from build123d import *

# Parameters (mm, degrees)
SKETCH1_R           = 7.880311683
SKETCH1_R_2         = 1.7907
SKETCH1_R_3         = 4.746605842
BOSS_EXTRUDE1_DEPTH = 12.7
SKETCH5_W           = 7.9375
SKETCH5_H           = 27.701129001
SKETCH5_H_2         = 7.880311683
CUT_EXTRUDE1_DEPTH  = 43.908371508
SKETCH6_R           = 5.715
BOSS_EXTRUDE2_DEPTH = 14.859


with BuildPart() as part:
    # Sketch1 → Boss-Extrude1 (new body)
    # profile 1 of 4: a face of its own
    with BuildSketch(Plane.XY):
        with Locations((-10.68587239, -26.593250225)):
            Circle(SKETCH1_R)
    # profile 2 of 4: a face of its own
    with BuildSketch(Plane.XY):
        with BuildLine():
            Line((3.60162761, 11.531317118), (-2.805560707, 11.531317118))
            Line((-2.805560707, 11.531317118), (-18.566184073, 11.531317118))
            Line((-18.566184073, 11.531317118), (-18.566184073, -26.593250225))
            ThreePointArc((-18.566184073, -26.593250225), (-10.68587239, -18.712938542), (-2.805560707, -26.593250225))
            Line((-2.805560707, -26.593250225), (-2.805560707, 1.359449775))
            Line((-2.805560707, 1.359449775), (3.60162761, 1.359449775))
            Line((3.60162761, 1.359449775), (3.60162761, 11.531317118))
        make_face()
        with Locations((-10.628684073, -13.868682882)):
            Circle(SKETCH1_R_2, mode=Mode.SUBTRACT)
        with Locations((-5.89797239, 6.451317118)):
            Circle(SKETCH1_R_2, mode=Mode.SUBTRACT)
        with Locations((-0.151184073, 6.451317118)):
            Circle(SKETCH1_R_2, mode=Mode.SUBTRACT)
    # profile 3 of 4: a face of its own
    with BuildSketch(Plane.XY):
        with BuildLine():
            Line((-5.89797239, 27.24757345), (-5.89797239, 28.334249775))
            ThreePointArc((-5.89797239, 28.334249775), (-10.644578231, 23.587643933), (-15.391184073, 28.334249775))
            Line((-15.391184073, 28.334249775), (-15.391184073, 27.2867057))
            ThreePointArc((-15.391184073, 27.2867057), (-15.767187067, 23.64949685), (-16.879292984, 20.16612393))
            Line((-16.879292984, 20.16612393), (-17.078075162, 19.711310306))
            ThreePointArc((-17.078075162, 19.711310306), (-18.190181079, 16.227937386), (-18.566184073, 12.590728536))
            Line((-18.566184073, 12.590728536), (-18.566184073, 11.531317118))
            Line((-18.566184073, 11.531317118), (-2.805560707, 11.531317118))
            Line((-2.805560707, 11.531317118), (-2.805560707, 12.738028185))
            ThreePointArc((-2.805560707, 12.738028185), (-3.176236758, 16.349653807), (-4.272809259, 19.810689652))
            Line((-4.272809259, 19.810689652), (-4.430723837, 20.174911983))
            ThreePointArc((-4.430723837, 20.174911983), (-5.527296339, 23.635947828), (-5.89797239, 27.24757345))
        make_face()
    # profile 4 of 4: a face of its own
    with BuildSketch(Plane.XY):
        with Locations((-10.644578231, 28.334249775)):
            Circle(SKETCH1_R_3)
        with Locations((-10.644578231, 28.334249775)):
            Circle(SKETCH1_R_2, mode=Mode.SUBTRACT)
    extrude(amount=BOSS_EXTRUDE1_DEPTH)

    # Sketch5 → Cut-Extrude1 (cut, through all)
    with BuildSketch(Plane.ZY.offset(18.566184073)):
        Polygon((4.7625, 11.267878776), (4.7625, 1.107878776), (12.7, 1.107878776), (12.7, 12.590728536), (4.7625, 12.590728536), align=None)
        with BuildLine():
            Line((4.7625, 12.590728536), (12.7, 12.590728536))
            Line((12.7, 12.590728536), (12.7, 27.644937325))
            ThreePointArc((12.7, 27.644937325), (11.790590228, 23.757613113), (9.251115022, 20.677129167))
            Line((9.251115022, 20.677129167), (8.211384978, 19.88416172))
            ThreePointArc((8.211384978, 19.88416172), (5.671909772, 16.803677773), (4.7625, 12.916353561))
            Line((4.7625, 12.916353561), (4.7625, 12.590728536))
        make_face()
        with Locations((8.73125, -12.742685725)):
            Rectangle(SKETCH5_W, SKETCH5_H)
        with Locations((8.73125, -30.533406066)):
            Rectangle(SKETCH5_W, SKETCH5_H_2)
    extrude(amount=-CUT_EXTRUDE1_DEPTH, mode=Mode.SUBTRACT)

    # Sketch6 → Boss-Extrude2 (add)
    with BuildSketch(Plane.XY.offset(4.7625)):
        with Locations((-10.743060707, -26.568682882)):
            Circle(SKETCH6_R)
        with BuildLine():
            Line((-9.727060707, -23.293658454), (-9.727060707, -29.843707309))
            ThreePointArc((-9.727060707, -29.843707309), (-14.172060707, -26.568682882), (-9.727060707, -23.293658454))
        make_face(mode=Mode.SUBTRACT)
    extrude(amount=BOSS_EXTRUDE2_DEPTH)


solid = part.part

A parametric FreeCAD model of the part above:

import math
import FreeCAD as App
import Part
import Sketcher
Q = App.Units.Quantity

doc = App.newDocument("Part")
params = doc.addObject("Spreadsheet::Sheet", "Params")
for row, (alias, value) in enumerate([
    ("sketch1_radius", "0.7 in"),
    ("sketch1_diameter", "0.141 in"),
    ("pad1_length", "0.5 in"),
    ("sketch2_radius", "0.345 in"),
    ("sketch2_height", "0.3125 in"),
    ("sketch3_diameter", "0.45 in"),
    ("sketch3_radius", "0.135 in"),
    ("sketch3_width", "0.04 in"),
    ("pad2_length", "0.585 in"),
], start=1):
    params.set(f"A{row}", alias)
    params.set(f"B{row}", "=" + value)
    params.setAlias(f"B{row}", alias)

body = doc.addObject("PartDesign::Body", "Body")

sketch1 = body.newObject("Sketcher::SketchObject", "Sketch")
sketch1.AttachmentSupport = (doc.getObject("XY_Plane"), [""])
sketch1.MapMode = "FlatFace"
sketch1.addGeometry([
    Part.ArcOfCircle(Part.Circle(App.Vector(-10.69, -26.59, 0), App.Vector(0, 0, 1), 7.88), math.radians(180), math.radians(360)),
    Part.LineSegment(App.Vector(-2.81, -26.59, 0), App.Vector(-2.81, 1.36, 0)),
    Part.LineSegment(App.Vector(-2.81, 1.36, 0), App.Vector(3.6, 1.36, 0)),
    Part.LineSegment(App.Vector(3.6, 1.36, 0), App.Vector(3.6, 11.53, 0)),
    Part.LineSegment(App.Vector(3.6, 11.53, 0), App.Vector(-2.81, 11.53, 0)),
    Part.LineSegment(App.Vector(-2.81, 11.53, 0), App.Vector(-2.81, 12.74, 0)),
    Part.ArcOfCircle(Part.Circle(App.Vector(-20.59, 12.74, 0), App.Vector(0, 0, 1), 17.78), math.radians(0), math.radians(23)),
    Part.LineSegment(App.Vector(-4.27, 19.81, 0), App.Vector(-4.43, 20.17, 0)),
    Part.ArcOfCircle(Part.Circle(App.Vector(11.88, 27.25, 0), App.Vector(0, 0, 1), 17.78), math.radians(-180), math.radians(-157)),
    Part.LineSegment(App.Vector(-5.9, 27.25, 0), App.Vector(-5.9, 28.33, 0)),
    Part.ArcOfCircle(Part.Circle(App.Vector(-10.64, 28.33, 0), App.Vector(0, 0, 1), 4.75), math.radians(0), math.radians(180)),
    Part.LineSegment(App.Vector(-15.39, 28.33, 0), App.Vector(-15.39, 27.29, 0)),
    Part.ArcOfCircle(Part.Circle(App.Vector(-33.17, 27.29, 0), App.Vector(0, 0, 1), 17.78), math.radians(-24), math.radians(0)),
    Part.LineSegment(App.Vector(-16.88, 20.17, 0), App.Vector(-17.08, 19.71, 0)),
    Part.ArcOfCircle(Part.Circle(App.Vector(-0.79, 12.59, 0), App.Vector(0, 0, 1), 17.78), math.radians(156), math.radians(180)),
    Part.LineSegment(App.Vector(-18.57, 12.59, 0), App.Vector(-18.57, -26.59, 0)),
    Part.Circle(App.Vector(-0.15, 6.45, 0), App.Vector(0, 0, 1), 1.79),
    Part.Circle(App.Vector(-10.63, -13.87, 0), App.Vector(0, 0, 1), 1.79),
    Part.Circle(App.Vector(-5.9, 6.45, 0), App.Vector(0, 0, 1), 1.79),
    Part.Circle(App.Vector(-10.64, 28.33, 0), App.Vector(0, 0, 1), 1.79),
], False)
sketch1.addConstraint([
    Sketcher.Constraint("Tangent", 0, 2, 1, 1),
    Sketcher.Constraint("Coincident", 1, 2, 2, 1),
    Sketcher.Constraint("Coincident", 2, 2, 3, 1),
    Sketcher.Constraint("Coincident", 3, 2, 4, 1),
    Sketcher.Constraint("Coincident", 4, 2, 5, 1),
    Sketcher.Constraint("Tangent", 5, 2, 6, 1),
    Sketcher.Constraint("Tangent", 6, 2, 7, 1),
    Sketcher.Constraint("Tangent", 7, 2, 8, 2),
    Sketcher.Constraint("Tangent", 8, 1, 9, 1),
    Sketcher.Constraint("Tangent", 9, 2, 10, 1),
    Sketcher.Constraint("Tangent", 10, 2, 11, 1),
    Sketcher.Constraint("Tangent", 11, 2, 12, 2),
    Sketcher.Constraint("Tangent", 12, 1, 13, 1),
    Sketcher.Constraint("Tangent", 13, 2, 14, 1),
    Sketcher.Constraint("Tangent", 14, 2, 15, 1),
    Sketcher.Constraint("Tangent", 15, 2, 0, 1),
    Sketcher.Constraint("Vertical", 1),
    Sketcher.Constraint("Horizontal", 2),
    Sketcher.Constraint("Vertical", 3),
    Sketcher.Constraint("Horizontal", 4),
    Sketcher.Constraint("Vertical", 5),
    Sketcher.Constraint("Vertical", 9),
    Sketcher.Constraint("Vertical", 11),
    Sketcher.Constraint("Vertical", 15),
    Sketcher.Constraint("Coincident", 19, 3, 10, 3),
    Sketcher.Constraint("Equal", 6, 8),
    Sketcher.Constraint("Equal", 8, 12),
    Sketcher.Constraint("Equal", 12, 14),
    Sketcher.Constraint("Equal", 16, 17),
    Sketcher.Constraint("Equal", 17, 18),
    Sketcher.Constraint("Equal", 18, 19),
    Sketcher.Constraint("Horizontal", 16, 3, 18, 3),
    Sketcher.Constraint("Vertical", 1, 2, 4, 2),
    Sketcher.Constraint("Vertical", 18, 3, 8, 1),
    Sketcher.Constraint("Radius", 6, Q("0.7 in")),
    Sketcher.Constraint("Diameter", 16, Q("0.141 in")),
    Sketcher.Constraint("DistanceY", 17, 3, 16, 3, Q("0.8 in")),
    Sketcher.Constraint("DistanceY", 16, 3, 3, 2, Q("0.2 in")),
    Sketcher.Constraint("DistanceY", 1, 1, 1, 2, Q("1.1005 in")),
    Sketcher.Constraint("Radius", 0, 7.880312),
    Sketcher.Constraint("DistanceX", 12, 3, 14, 3, Q("1.275 in")),
    Sketcher.Constraint("DistanceX", 14, 3, 16, 3, Q("0.025 in")),
    Sketcher.Constraint("DistanceX", 18, 3, 2, 2, Q("0.374 in")),
    Sketcher.Constraint("DistanceX", 15, 2, 17, 3, Q("0.3125 in")),
    Sketcher.Constraint("Radius", 10, 4.746606),
    Sketcher.Constraint("DistanceY", 0, 3, 10, 3, Q("2.1625 in")),
    Sketcher.Constraint("DistanceY", 5, 1, 5, 2, 1.206711),
    Sketcher.Constraint("DistanceY", 15, 2, 15, 1, 39.183979),
    Sketcher.Constraint("DistanceY", 14, 3, 6, 3, 0.1473),
    Sketcher.Constraint("DistanceY", 9, 1, 9, 2, 1.086676),
    Sketcher.Constraint("DistanceY", 11, 2, 11, 1, 1.047544),
    Sketcher.Constraint("DistanceY", 0, 3, -1, 1, 26.59325),
    Sketcher.Constraint("DistanceX", 6, 3, -1, 1, 20.585561),
])
sketch1.setExpression("Constraints[34]", "Params.sketch1_radius")
sketch1.setExpression("Constraints[35]", "Params.sketch1_diameter")
pad1 = body.newObject("PartDesign::Pad", "Pad")
pad1.Profile = sketch1
pad1.setExpression("Length", "Params.pad1_length")

sketch2 = body.newObject("Sketcher::SketchObject", "Sketch001")
sketch2.AttachmentSupport = (doc.getObject("YZ_Plane"), [""])
sketch2.MapMode = "FlatFace"
sketch2.AttachmentOffset = App.Placement(App.Vector(0, 0, -18.566184), App.Rotation())
sketch2.addGeometry([
    Part.ArcOfCircle(Part.Circle(App.Vector(27.6, 3.9, 0), App.Vector(0, 0, 1), 8.8), math.radians(90), math.radians(143)),
    Part.LineSegment(App.Vector(20.7, 9.3, 0), App.Vector(19.9, 8.2, 0)),
    Part.ArcOfCircle(Part.Circle(App.Vector(12.9, 13.5, 0), App.Vector(0, 0, 1), 8.8), math.radians(-90), math.radians(-37)),
    Part.LineSegment(App.Vector(12.9, 4.8, 0), App.Vector(-34.5, 4.8, 0)),
    Part.LineSegment(App.Vector(-34.5, 4.8, 0), App.Vector(-34.5, 12.7, 0)),
    Part.LineSegment(App.Vector(-34.5, 12.7, 0), App.Vector(27.6, 12.7, 0)),
], False)
sketch2.addConstraint([
    Sketcher.Constraint("Tangent", 0, 2, 1, 1),
    Sketcher.Constraint("Tangent", 1, 2, 2, 2),
    Sketcher.Constraint("Tangent", 2, 1, 3, 1),
    Sketcher.Constraint("Coincident", 3, 2, 4, 1),
    Sketcher.Constraint("Coincident", 4, 2, 5, 1),
    Sketcher.Constraint("Tangent", 5, 2, 0, 1),
    Sketcher.Constraint("Horizontal", 3),
    Sketcher.Constraint("Vertical", 4),
    Sketcher.Constraint("Horizontal", 5),
    Sketcher.Constraint("Equal", 0, 2),
    Sketcher.Constraint("Radius", 0, Q("0.345 in")),
    Sketcher.Constraint("DistanceY", -1, 1, 4, 2, Q("0.5 in")),
    Sketcher.Constraint("DistanceY", 4, 1, 4, 2, Q("0.3125 in")),
    Sketcher.Constraint("DistanceX", 5, 1, 5, 2, 62.118499),
    Sketcher.Constraint("DistanceX", 3, 2, 3, 1, 47.389915),
    Sketcher.Constraint("DistanceX", -1, 1, 0, 2, 20.677129),
])
sketch2.setExpression("Constraints[10]", "Params.sketch2_radius")
sketch2.setExpression("Constraints[12]", "Params.sketch2_height")
pocket1 = body.newObject("PartDesign::Pocket", "Pocket")
pocket1.Profile = sketch2
pocket1.Type = "ThroughAll"
pocket1.Reversed = True

sketch3 = body.newObject("Sketcher::SketchObject", "Sketch002")
sketch3.AttachmentSupport = (doc.getObject("XY_Plane"), [""])
sketch3.MapMode = "FlatFace"
sketch3.AttachmentOffset = App.Placement(App.Vector(0, 0, 0.1875 * 25.4), App.Rotation())
sketch3.addGeometry([
    Part.Circle(App.Vector(-10.7, -26.6, 0), App.Vector(0, 0, 1), 5.7),
    Part.ArcOfCircle(Part.Circle(App.Vector(-10.7, -26.6, 0), App.Vector(0, 0, 1), 3.4), math.radians(73), math.radians(287)),
    Part.LineSegment(App.Vector(-9.7, -23.3, 0), App.Vector(-9.7, -29.8, 0)),
], False)
sketch3.addConstraint([
    Sketcher.Constraint("Coincident", 1, 1, 2, 1),
    Sketcher.Constraint("Coincident", 2, 2, 1, 2),
    Sketcher.Constraint("Vertical", 2),
    Sketcher.Constraint("Coincident", 1, 3, 0, 3),
    Sketcher.Constraint("Diameter", 0, Q("0.45 in")),
    Sketcher.Constraint("Radius", 1, Q("0.135 in")),
    Sketcher.Constraint("DistanceX", 1, 3, 1, 1, Q("0.04 in")),
    Sketcher.Constraint("DistanceX", 0, 3, -1, 1, 10.743061),
    Sketcher.Constraint("DistanceY", 1, 1, -1, 1, 23.293658),
])
sketch3.setExpression("Constraints[4]", "Params.sketch3_diameter")
sketch3.setExpression("Constraints[5]", "Params.sketch3_radius")
sketch3.setExpression("Constraints[6]", "Params.sketch3_width")
pad2 = body.newObject("PartDesign::Pad", "Pad001")
pad2.Profile = sketch3
pad2.setExpression("Length", "Params.pad2_length")

doc.recompute()
